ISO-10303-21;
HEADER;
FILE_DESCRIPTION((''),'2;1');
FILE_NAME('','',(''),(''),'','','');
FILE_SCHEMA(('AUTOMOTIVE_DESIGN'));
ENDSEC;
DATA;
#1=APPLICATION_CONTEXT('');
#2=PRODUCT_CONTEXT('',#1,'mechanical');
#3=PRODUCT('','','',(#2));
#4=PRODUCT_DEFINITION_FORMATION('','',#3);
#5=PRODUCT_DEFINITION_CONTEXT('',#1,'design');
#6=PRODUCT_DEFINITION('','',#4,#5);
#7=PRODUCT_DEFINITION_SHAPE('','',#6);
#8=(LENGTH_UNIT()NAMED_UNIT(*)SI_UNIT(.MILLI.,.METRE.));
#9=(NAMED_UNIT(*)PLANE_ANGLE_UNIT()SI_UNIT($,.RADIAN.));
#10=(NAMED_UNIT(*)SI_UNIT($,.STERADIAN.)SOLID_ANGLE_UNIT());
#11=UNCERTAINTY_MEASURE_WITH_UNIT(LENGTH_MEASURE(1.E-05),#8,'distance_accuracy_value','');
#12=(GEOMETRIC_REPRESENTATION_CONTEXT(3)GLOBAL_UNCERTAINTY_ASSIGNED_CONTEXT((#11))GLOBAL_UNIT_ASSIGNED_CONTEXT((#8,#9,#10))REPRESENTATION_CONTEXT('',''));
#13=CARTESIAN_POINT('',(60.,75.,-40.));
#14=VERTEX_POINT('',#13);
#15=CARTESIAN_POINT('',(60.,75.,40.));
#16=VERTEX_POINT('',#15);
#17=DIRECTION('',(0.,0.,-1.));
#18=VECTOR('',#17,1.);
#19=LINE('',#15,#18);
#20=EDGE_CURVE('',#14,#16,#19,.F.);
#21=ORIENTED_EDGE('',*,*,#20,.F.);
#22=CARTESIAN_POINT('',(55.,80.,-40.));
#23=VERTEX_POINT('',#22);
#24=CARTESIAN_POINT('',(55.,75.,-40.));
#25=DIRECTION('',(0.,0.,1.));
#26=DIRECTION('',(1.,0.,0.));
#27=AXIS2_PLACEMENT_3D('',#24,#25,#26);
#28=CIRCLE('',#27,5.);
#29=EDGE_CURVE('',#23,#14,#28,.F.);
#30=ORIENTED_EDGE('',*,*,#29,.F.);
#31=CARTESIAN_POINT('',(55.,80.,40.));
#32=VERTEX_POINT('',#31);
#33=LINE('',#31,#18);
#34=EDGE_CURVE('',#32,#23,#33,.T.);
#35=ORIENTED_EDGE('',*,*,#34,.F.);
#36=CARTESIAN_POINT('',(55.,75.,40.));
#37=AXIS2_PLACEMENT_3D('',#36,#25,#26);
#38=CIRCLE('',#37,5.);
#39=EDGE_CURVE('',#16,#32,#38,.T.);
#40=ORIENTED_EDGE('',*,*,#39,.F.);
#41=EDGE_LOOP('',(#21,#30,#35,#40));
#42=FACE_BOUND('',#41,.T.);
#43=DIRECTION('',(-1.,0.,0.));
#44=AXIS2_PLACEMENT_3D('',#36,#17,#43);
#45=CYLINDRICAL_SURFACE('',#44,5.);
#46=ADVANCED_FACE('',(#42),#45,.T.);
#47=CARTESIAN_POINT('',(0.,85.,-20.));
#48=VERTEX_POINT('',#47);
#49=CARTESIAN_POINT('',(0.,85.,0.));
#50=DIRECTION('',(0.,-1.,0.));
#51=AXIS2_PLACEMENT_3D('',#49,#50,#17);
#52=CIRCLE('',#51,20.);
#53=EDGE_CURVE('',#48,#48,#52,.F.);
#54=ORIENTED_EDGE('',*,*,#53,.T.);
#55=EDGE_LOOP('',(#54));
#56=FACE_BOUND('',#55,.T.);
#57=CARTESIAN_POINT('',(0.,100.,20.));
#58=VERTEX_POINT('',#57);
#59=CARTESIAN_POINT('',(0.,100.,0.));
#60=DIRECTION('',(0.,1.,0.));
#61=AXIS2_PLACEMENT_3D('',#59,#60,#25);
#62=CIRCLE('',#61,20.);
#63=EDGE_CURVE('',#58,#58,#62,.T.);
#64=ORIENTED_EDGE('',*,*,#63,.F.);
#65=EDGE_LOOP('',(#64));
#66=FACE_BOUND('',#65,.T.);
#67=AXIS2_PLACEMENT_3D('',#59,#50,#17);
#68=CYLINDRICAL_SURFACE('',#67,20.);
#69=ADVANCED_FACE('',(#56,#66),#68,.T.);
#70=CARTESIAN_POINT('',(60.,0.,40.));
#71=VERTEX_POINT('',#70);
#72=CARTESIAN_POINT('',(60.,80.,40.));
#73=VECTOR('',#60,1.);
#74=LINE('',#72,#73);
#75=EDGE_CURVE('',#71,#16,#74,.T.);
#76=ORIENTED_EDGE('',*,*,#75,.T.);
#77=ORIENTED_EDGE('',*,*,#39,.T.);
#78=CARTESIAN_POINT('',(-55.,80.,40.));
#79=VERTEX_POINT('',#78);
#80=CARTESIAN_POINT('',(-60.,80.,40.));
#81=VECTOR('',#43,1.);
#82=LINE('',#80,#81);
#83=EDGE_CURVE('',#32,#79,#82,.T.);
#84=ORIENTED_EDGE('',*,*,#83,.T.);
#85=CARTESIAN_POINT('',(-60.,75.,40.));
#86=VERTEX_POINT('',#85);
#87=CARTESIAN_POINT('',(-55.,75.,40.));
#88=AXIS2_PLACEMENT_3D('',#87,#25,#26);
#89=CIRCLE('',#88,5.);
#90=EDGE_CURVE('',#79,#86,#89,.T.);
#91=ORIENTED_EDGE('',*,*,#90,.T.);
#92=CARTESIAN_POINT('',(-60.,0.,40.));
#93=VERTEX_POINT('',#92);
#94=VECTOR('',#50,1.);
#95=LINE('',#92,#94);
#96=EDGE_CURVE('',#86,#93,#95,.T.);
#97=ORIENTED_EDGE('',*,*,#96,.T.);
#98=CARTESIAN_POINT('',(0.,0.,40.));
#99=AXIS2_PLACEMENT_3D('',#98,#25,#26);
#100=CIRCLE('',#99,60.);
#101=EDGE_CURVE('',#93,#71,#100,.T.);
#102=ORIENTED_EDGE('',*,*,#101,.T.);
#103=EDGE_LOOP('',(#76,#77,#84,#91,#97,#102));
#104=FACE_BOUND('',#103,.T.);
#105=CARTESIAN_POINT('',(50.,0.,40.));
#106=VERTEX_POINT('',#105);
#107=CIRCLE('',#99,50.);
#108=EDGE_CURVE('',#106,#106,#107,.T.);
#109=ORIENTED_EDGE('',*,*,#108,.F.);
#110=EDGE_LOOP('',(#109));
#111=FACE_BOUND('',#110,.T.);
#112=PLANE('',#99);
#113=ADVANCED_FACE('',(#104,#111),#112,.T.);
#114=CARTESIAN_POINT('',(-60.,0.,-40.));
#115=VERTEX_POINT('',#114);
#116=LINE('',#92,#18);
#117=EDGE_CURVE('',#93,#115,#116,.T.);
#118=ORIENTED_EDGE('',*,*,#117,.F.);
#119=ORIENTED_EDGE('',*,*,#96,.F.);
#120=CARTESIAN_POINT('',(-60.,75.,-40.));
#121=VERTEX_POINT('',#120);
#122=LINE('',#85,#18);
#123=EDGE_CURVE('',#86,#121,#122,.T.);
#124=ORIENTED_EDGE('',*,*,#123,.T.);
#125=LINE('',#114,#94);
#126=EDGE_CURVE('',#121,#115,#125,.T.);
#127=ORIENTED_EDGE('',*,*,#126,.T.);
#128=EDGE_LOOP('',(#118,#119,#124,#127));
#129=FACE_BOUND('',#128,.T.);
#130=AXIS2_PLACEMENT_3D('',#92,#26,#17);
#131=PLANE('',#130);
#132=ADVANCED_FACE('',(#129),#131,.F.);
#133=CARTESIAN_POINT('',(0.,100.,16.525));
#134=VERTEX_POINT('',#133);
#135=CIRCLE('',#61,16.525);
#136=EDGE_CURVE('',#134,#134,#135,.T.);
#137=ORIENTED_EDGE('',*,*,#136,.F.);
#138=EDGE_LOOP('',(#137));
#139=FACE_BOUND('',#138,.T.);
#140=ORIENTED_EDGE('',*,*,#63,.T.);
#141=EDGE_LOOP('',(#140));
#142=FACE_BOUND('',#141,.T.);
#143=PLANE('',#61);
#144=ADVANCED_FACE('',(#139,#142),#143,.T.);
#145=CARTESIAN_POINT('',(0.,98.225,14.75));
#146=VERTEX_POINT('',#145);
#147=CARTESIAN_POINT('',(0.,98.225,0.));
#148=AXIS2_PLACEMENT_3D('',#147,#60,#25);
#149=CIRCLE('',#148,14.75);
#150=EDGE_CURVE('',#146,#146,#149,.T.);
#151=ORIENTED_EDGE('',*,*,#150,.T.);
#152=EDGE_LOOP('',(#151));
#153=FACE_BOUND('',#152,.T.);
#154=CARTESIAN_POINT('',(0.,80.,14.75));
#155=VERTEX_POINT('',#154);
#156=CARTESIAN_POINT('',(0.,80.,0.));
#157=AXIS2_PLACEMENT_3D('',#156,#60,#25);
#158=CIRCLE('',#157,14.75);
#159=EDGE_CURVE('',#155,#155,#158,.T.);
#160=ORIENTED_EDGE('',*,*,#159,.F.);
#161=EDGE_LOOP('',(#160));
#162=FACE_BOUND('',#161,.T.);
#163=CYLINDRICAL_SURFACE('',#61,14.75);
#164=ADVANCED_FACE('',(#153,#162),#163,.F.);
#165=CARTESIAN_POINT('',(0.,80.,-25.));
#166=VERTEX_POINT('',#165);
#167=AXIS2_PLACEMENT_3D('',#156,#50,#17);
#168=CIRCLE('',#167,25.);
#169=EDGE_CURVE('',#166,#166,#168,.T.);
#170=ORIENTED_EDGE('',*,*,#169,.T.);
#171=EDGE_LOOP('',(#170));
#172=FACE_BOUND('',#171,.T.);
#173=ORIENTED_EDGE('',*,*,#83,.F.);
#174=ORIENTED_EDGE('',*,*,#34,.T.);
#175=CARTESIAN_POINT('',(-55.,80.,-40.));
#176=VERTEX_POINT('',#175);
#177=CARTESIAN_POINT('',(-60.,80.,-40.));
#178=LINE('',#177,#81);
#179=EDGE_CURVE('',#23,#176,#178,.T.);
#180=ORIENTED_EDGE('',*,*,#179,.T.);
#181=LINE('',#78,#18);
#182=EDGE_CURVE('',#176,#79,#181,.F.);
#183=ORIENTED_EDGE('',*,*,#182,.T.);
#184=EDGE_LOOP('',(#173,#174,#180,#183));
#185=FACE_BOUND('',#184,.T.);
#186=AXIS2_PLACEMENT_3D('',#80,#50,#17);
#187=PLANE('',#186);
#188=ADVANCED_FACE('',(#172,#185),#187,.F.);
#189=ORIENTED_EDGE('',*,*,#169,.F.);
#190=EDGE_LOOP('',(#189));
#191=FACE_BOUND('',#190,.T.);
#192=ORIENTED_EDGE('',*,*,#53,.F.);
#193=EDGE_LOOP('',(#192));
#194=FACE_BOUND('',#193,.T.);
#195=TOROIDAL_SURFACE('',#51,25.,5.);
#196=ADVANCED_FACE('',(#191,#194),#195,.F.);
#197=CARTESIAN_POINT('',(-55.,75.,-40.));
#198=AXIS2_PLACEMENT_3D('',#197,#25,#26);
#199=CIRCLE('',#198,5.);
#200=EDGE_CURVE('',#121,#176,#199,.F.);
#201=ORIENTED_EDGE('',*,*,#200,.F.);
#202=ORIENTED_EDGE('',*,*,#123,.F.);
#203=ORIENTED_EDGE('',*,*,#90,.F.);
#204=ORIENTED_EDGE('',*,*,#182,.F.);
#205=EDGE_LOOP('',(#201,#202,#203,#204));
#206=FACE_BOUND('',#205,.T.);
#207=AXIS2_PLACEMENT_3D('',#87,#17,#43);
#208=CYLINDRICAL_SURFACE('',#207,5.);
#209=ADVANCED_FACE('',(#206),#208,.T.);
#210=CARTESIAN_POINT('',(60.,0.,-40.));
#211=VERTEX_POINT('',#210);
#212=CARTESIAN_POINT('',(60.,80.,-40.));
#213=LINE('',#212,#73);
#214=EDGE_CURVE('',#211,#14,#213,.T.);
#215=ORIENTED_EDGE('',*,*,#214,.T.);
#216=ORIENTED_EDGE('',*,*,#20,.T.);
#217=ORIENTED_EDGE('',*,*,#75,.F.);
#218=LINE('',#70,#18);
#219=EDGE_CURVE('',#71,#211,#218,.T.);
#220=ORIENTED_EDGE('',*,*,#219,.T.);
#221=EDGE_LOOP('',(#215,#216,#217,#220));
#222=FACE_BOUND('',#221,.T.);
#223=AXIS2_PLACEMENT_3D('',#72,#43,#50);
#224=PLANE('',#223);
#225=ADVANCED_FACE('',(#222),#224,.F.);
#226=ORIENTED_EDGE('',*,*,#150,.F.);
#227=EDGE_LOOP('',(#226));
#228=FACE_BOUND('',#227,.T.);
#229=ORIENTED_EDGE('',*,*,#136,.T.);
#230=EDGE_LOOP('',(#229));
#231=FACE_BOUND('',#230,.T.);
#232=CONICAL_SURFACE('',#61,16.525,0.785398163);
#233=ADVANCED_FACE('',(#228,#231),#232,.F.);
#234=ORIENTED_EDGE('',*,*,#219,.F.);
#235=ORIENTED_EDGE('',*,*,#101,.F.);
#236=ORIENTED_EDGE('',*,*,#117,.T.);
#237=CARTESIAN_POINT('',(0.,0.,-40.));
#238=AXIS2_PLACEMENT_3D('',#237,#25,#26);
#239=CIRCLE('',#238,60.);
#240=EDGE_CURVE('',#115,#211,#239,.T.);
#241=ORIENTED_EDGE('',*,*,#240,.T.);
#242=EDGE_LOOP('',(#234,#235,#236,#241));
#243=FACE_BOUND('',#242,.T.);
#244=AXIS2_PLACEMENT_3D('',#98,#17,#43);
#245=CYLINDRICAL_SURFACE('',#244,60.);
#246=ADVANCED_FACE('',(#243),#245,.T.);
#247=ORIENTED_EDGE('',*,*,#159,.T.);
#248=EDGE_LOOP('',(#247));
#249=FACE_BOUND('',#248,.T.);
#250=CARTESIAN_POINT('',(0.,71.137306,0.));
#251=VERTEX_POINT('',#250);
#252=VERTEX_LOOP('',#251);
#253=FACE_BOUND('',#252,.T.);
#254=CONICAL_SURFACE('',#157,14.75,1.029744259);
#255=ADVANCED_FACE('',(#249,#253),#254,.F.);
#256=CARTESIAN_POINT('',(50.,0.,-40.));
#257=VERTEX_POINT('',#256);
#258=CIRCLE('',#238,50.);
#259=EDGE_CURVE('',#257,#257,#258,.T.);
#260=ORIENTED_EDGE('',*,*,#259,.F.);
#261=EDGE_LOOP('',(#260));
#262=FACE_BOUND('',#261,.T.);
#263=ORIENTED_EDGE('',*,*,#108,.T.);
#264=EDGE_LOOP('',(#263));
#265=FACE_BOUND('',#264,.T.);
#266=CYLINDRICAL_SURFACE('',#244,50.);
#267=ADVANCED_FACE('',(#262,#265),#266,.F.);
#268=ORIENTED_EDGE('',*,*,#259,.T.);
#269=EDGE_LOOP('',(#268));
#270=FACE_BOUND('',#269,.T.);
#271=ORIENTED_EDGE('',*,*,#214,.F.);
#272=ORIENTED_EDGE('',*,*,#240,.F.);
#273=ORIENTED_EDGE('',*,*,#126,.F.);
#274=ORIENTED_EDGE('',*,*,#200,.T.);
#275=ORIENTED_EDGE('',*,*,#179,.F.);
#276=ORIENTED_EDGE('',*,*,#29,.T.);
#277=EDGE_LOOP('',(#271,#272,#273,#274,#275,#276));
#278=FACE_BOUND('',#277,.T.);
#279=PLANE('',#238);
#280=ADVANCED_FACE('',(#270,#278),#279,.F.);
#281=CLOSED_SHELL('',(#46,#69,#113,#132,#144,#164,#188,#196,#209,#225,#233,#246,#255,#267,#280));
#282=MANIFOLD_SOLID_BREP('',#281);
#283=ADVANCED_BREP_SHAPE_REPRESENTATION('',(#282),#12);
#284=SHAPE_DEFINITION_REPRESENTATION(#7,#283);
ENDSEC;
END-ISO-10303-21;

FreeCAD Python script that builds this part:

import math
import FreeCAD as App
import Part
import Sketcher

V = App.Vector
Q = App.Units.Quantity


def edges_at(feature, points):
    """Names of the edges that pass closest to the given points."""
    edges = feature.Shape.Edges
    near = lambda p: min(range(len(edges)), key=lambda i: edges[i].distToShape(Part.Vertex(*p))[0])
    return sorted({f"Edge{near(p) + 1}" for p in points})

doc = App.newDocument("Part")
body = doc.addObject("PartDesign::Body", "Body")

# Sketch on XY plane
sketch1 = doc.addObject("Sketcher::SketchObject", "Sketch")
body.addObject(sketch1)
sketch1.AttachmentSupport = (doc.XY_Plane, [""])
sketch1.MapMode = "FlatFace"
sketch1.addGeometry(Part.LineSegment(V(-60, 80, 0), V(-60, 0, 0)), False)
sketch1.addGeometry(Part.ArcOfCircle(Part.Circle(V(0, 0, 0), V(0, 0, 1), 60), math.radians(180), math.radians(360)), False)
sketch1.addGeometry(Part.LineSegment(V(60, 0, 0), V(60, 80, 0)), False)
sketch1.addGeometry(Part.LineSegment(V(60, 80, 0), V(-60, 80, 0)), False)
sketch1.addGeometry(Part.Circle(V(0, 0, 0), V(0, 0, 1), 50), False)
sketch1.addConstraint(Sketcher.Constraint("Tangent", 0, 2, 1, 1))
sketch1.addConstraint(Sketcher.Constraint("Tangent", 1, 2, 2, 1))
sketch1.addConstraint(Sketcher.Constraint("Coincident", 2, 2, 3, 1))
sketch1.addConstraint(Sketcher.Constraint("Coincident", 3, 2, 0, 1))
sketch1.addConstraint(Sketcher.Constraint("Vertical", 0))
sketch1.addConstraint(Sketcher.Constraint("Vertical", 2))
sketch1.addConstraint(Sketcher.Constraint("Horizontal", 3))
sketch1.addConstraint(Sketcher.Constraint("Coincident", 1, 3, -1, 1))
sketch1.addConstraint(Sketcher.Constraint("Coincident", 4, 3, -1, 1))
sketch1.addConstraint(Sketcher.Constraint("Diameter", 4, Q("100 mm")))
sketch1.addConstraint(Sketcher.Constraint("Radius", 1, Q("60 mm")))
sketch1.addConstraint(Sketcher.Constraint("DistanceY", 0, 2, 0, 1, Q("80 mm")))
pad1 = doc.addObject("PartDesign::Pad", "Pad")
body.addObject(pad1)
pad1.Profile = sketch1
pad1.Length = 80
pad1.Midplane = True
doc.recompute()

fillet = doc.addObject("PartDesign::Fillet", "Fillet")
body.addObject(fillet)
fillet.Base = (pad1, edges_at(pad1, [(-60, 80, 0), (60, 80, 0)]))
fillet.Radius = 5

# Sketch on XZ plane
sketch2 = doc.addObject("Sketcher::SketchObject", "Sketch001")
body.addObject(sketch2)
sketch2.AttachmentSupport = (doc.XZ_Plane, [""])
sketch2.MapMode = "FlatFace"
sketch2.AttachmentOffset = App.Placement(V(0, 0, -80), App.Rotation())
sketch2.addGeometry(Part.Circle(V(0, 0, 0), V(0, 0, 1), 20), False)
sketch2.addConstraint(Sketcher.Constraint("Coincident", 0, 3, -1, 1))
sketch2.addConstraint(Sketcher.Constraint("Diameter", 0, Q("40 mm")))
pad2 = doc.addObject("PartDesign::Pad", "Pad001")
body.addObject(pad2)
pad2.Profile = sketch2
pad2.Length = 20
pad2.Reversed = True

# Sketch on XZ plane
sketch3 = doc.addObject("Sketcher::SketchObject", "Sketch002")
body.addObject(sketch3)
sketch3.AttachmentSupport = (doc.XZ_Plane, [""])
sketch3.MapMode = "FlatFace"
sketch3.AttachmentOffset = App.Placement(V(0, 0, -100), App.Rotation())
sketch3.addGeometry(Part.Circle(V(0, 0, 0), V(0, 0, 1), 15), False)
sketch3.addConstraint(Sketcher.Constraint("Coincident", 0, 3, -1, 1))
sketch3.addConstraint(Sketcher.Constraint("Diameter", 0, Q("29.5 mm")))
doc.recompute()
hole = doc.addObject("PartDesign::Hole", "Hole")
body.addObject(hole)
hole.Profile = sketch3
hole.ThreadType = "None"
hole.Diameter = 29.5
hole.DepthType = "Dimension"
hole.Depth = 20
hole.DrillPoint = "Angled"
hole.DrillPointAngle = 118
hole.HoleCutType = "Countersink"
hole.HoleCutDiameter = 33.05
hole.HoleCutCountersinkAngle = 90
hole.Reversed = True
doc.recompute()

fillet2 = doc.addObject("PartDesign::Fillet", "Fillet001")
body.addObject(fillet2)
fillet2.Base = (hole, edges_at(hole, [(0, 80, 20)]))
fillet2.Radius = 5

doc.recompute()
